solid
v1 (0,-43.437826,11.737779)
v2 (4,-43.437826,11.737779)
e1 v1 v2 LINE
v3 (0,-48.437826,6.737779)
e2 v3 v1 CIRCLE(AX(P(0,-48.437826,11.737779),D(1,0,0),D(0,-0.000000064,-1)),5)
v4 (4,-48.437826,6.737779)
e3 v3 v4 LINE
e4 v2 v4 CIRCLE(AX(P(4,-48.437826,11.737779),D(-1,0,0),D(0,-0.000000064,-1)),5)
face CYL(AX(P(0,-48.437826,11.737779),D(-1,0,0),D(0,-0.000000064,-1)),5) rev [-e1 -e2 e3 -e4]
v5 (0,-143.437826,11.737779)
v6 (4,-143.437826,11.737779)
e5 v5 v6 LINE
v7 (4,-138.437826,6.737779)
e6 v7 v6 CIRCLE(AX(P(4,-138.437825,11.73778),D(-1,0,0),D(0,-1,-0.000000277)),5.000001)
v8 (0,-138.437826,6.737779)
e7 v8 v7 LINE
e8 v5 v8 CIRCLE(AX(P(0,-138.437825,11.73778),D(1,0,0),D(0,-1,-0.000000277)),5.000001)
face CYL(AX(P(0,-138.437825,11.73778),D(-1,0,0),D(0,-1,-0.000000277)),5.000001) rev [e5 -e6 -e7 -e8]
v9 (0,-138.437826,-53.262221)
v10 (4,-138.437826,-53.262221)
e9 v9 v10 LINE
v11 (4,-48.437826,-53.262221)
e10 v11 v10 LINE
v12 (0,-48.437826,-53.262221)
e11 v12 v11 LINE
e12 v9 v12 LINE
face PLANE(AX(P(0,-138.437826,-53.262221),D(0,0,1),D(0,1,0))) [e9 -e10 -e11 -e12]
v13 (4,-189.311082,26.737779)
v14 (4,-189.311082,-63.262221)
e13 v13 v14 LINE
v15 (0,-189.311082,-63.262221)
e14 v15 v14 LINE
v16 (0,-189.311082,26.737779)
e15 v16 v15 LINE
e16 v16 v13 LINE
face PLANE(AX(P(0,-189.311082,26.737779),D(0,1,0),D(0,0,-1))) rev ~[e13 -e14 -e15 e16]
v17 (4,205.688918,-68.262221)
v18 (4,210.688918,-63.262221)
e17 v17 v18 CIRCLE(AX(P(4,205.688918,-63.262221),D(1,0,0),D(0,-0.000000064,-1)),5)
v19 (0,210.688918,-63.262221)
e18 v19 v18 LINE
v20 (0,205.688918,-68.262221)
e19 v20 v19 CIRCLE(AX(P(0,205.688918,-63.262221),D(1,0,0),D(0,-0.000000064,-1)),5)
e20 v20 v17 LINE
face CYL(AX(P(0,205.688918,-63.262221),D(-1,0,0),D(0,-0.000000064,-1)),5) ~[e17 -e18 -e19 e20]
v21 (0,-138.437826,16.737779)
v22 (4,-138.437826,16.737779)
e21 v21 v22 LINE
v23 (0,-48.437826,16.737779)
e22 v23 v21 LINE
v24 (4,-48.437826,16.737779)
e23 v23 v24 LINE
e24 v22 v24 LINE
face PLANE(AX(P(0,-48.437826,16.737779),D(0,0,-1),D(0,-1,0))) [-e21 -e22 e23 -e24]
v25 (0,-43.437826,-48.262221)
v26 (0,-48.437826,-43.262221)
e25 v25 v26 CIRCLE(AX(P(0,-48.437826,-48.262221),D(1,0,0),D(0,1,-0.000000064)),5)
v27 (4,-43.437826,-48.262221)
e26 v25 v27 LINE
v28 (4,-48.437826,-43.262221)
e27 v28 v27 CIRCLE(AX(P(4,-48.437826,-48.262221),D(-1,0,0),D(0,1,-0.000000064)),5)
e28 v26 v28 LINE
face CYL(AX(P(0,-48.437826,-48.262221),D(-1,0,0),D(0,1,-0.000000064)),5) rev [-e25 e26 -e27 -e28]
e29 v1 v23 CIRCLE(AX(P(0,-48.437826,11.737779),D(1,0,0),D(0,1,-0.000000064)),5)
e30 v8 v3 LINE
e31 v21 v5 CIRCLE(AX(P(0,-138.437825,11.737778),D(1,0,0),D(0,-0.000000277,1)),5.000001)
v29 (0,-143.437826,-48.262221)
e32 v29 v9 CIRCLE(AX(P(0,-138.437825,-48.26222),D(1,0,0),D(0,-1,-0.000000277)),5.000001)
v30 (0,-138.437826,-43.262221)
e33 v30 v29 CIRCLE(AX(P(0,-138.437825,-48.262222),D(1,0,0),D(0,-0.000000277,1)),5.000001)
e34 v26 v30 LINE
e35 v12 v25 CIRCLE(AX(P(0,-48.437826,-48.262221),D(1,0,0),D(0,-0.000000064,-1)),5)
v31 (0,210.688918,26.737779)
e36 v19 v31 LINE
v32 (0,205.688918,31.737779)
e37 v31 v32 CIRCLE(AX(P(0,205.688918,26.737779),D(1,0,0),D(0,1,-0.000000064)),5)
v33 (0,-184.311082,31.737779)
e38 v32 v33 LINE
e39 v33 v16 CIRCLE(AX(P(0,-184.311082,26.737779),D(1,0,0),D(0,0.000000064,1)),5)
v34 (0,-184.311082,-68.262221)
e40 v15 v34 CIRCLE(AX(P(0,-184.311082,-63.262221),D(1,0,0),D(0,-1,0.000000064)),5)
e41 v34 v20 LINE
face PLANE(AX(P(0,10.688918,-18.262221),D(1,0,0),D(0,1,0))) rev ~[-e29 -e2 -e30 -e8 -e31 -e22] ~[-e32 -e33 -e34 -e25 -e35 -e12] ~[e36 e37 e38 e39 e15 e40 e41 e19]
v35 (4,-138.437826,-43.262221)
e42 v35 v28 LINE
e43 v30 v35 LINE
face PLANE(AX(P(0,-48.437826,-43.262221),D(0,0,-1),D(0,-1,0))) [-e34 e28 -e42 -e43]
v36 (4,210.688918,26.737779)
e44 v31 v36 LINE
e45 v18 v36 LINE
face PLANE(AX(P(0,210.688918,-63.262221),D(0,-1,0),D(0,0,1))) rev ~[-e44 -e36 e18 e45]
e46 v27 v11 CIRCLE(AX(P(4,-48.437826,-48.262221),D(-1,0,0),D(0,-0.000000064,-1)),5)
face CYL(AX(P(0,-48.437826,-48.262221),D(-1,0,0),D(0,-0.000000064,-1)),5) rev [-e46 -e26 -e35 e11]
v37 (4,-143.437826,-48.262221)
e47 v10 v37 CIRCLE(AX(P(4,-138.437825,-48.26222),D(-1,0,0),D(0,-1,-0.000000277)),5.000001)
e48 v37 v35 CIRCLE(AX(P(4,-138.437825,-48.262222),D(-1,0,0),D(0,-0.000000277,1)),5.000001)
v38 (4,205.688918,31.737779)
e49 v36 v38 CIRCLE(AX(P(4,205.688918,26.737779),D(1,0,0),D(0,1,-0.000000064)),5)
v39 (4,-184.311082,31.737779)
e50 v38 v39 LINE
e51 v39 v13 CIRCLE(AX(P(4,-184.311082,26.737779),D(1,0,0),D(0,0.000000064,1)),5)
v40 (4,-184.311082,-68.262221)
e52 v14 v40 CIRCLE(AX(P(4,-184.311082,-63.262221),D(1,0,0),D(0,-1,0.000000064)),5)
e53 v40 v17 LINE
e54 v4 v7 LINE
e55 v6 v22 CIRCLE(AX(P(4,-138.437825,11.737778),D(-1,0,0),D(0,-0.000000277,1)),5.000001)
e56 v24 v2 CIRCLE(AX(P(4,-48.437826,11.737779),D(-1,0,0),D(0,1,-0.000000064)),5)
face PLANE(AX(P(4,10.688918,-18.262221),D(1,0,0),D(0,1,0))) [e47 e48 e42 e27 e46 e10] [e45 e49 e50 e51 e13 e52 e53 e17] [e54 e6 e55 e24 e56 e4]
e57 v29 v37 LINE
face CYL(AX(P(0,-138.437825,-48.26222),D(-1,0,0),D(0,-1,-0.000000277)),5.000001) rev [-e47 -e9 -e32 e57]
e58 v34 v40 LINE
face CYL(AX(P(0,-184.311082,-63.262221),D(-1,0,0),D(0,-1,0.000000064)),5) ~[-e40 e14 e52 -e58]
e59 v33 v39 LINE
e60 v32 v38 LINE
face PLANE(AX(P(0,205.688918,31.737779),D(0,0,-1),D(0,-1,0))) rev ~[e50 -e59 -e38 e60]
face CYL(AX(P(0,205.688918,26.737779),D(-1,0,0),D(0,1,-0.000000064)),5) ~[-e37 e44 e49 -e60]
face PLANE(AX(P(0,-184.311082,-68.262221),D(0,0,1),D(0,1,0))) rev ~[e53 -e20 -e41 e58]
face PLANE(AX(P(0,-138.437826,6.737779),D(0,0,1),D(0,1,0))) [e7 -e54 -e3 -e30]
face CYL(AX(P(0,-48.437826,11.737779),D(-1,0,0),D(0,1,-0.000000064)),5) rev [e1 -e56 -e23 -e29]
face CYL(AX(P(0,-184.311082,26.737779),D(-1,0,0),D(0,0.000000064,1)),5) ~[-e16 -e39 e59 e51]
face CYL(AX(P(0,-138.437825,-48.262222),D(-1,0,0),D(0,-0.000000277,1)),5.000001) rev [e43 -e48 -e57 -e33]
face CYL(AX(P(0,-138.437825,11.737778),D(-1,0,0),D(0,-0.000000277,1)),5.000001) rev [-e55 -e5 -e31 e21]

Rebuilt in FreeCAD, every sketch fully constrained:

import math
import FreeCAD as App
import Part
import Sketcher

doc = App.newDocument("Part")
body = doc.addObject("PartDesign::Body", "Body")

sketch1 = doc.addObject("Sketcher::SketchObject", "Sketch")
body.addObject(sketch1)
sketch1.AttachmentSupport = (doc.YZ_Plane, [""])
sketch1.MapMode = "FlatFace"
sketch1.addGeometry([
    Part.LineSegment(App.Vector(205.7, 31.7, 0), App.Vector(-184.3, 31.7, 0)),
    Part.ArcOfCircle(Part.Circle(App.Vector(-184.3, 26.7, 0), App.Vector(0, 0, 1), 5), math.radians(90), math.radians(180)),
    Part.LineSegment(App.Vector(-189.3, 26.7, 0), App.Vector(-189.3, -63.3, 0)),
    Part.ArcOfCircle(Part.Circle(App.Vector(-184.3, -63.3, 0), App.Vector(0, 0, 1), 5), math.radians(180), math.radians(270)),
    Part.LineSegment(App.Vector(-184.3, -68.3, 0), App.Vector(205.7, -68.3, 0)),
    Part.ArcOfCircle(Part.Circle(App.Vector(205.7, -63.3, 0), App.Vector(0, 0, 1), 5), math.radians(-90), math.radians(0)),
    Part.LineSegment(App.Vector(210.7, -63.3, 0), App.Vector(210.7, 26.7, 0)),
    Part.ArcOfCircle(Part.Circle(App.Vector(205.7, 26.7, 0), App.Vector(0, 0, 1), 5), math.radians(0), math.radians(90)),
], False)
sketch1.addConstraint([
    Sketcher.Constraint("Tangent", 0, 2, 1, 1),
    Sketcher.Constraint("Tangent", 1, 2, 2, 1),
    Sketcher.Constraint("Tangent", 2, 2, 3, 1),
    Sketcher.Constraint("Tangent", 3, 2, 4, 1),
    Sketcher.Constraint("Tangent", 4, 2, 5, 1),
    Sketcher.Constraint("Tangent", 5, 2, 6, 1),
    Sketcher.Constraint("Tangent", 6, 2, 7, 1),
    Sketcher.Constraint("Tangent", 7, 2, 0, 1),
    Sketcher.Constraint("Horizontal", 0),
    Sketcher.Constraint("Vertical", 2),
    Sketcher.Constraint("Horizontal", 4),
    Sketcher.Constraint("Vertical", 6),
    Sketcher.Constraint("Equal", 1, 3),
    Sketcher.Constraint("Equal", 3, 5),
    Sketcher.Constraint("Equal", 5, 7),
    Sketcher.Constraint("Radius", 1, 5.0),
    Sketcher.Constraint("DistanceX", 0, 2, 0, 1, 390.0),
    Sketcher.Constraint("DistanceY", 2, 2, 2, 1, 90.0),
    Sketcher.Constraint("DistanceY", -1, 1, 1, 3, 26.737779),
    Sketcher.Constraint("DistanceX", -1, 1, 5, 3, 205.688918),
])
pad1 = doc.addObject("PartDesign::Pad", "Pad")
body.addObject(pad1)
pad1.Profile = sketch1
pad1.Length = 4

sketch2 = doc.addObject("Sketcher::SketchObject", "Sketch001")
body.addObject(sketch2)
sketch2.AttachmentSupport = (doc.YZ_Plane, [""])
sketch2.MapMode = "FlatFace"
sketch2.addGeometry([
    Part.LineSegment(App.Vector(-48.4, 16.7, 0), App.Vector(-138.4, 16.7, 0)),
    Part.ArcOfCircle(Part.Circle(App.Vector(-138.4, 11.7, 0), App.Vector(0, 0, 1), 5), math.radians(90), math.radians(180)),
    Part.ArcOfCircle(Part.Circle(App.Vector(-138.4, 11.7, 0), App.Vector(0, 0, 1), 5), math.radians(-180), math.radians(-90)),
    Part.LineSegment(App.Vector(-138.4, 6.7, 0), App.Vector(-48.4, 6.7, 0)),
    Part.ArcOfCircle(Part.Circle(App.Vector(-48.4, 11.7, 0), App.Vector(0, 0, 1), 5), math.radians(-90), math.radians(0)),
    Part.ArcOfCircle(Part.Circle(App.Vector(-48.4, 11.7, 0), App.Vector(0, 0, 1), 5), math.radians(0), math.radians(90)),
    Part.LineSegment(App.Vector(-48.4, -43.3, 0), App.Vector(-138.4, -43.3, 0)),
    Part.ArcOfCircle(Part.Circle(App.Vector(-138.4, -48.3, 0), App.Vector(0, 0, 1), 5), math.radians(90), math.radians(180)),
    Part.ArcOfCircle(Part.Circle(App.Vector(-138.4, -48.3, 0), App.Vector(0, 0, 1), 5), math.radians(-180), math.radians(-90)),
    Part.LineSegment(App.Vector(-138.4, -53.3, 0), App.Vector(-48.4, -53.3, 0)),
    Part.ArcOfCircle(Part.Circle(App.Vector(-48.4, -48.3, 0), App.Vector(0, 0, 1), 5), math.radians(-90), math.radians(0)),
    Part.ArcOfCircle(Part.Circle(App.Vector(-48.4, -48.3, 0), App.Vector(0, 0, 1), 5), math.radians(0), math.radians(90)),
], False)
sketch2.addConstraint([
    Sketcher.Constraint("Tangent", 0, 2, 1, 1),
    Sketcher.Constraint("Tangent", 1, 2, 2, 1),
    Sketcher.Constraint("Tangent", 2, 2, 3, 1),
    Sketcher.Constraint("Tangent", 3, 2, 4, 1),
    Sketcher.Constraint("Tangent", 4, 2, 5, 1),
    Sketcher.Constraint("Tangent", 5, 2, 0, 1),
    Sketcher.Constraint("Tangent", 6, 2, 7, 1),
    Sketcher.Constraint("Tangent", 7, 2, 8, 1),
    Sketcher.Constraint("Tangent", 8, 2, 9, 1),
    Sketcher.Constraint("Tangent", 9, 2, 10, 1),
    Sketcher.Constraint("Tangent", 10, 2, 11, 1),
    Sketcher.Constraint("Tangent", 11, 2, 6, 1),
    Sketcher.Constraint("Horizontal", 0),
    Sketcher.Constraint("Horizontal", 3),
    Sketcher.Constraint("Horizontal", 6),
    Sketcher.Constraint("Horizontal", 9),
    Sketcher.Constraint("Equal", 1, 2),
    Sketcher.Constraint("Equal", 2, 4),
    Sketcher.Constraint("Equal", 5, 7),
    Sketcher.Constraint("Equal", 7, 8),
    Sketcher.Constraint("Equal", 8, 10),
    Sketcher.Constraint("Horizontal", 5, 3, 1, 2),
    Sketcher.Constraint("Horizontal", 1, 2, 4, 2),
    Sketcher.Constraint("Horizontal", 11, 3, 7, 2),
    Sketcher.Constraint("Horizontal", 7, 2, 10, 2),
    Sketcher.Constraint("Vertical", 2, 3, 7, 3),
    Sketcher.Constraint("Vertical", 5, 3, 10, 3),
    Sketcher.Constraint("Radius", 1, 5.000001),
    Sketcher.Constraint("DistanceX", 0, 2, 0, 1, 90.0),
    Sketcher.Constraint("DistanceY", 7, 3, 1, 3, 60.0),
    Sketcher.Constraint("DistanceY", -1, 1, 2, 3, 11.73778),
    Sketcher.Constraint("DistanceX", 1, 3, -1, 1, 138.437825),
])
pocket1 = doc.addObject("PartDesign::Pocket", "Pocket")
body.addObject(pocket1)
pocket1.Profile = sketch2
pocket1.Length = 25
pocket1.Reversed = True

doc.recompute()
